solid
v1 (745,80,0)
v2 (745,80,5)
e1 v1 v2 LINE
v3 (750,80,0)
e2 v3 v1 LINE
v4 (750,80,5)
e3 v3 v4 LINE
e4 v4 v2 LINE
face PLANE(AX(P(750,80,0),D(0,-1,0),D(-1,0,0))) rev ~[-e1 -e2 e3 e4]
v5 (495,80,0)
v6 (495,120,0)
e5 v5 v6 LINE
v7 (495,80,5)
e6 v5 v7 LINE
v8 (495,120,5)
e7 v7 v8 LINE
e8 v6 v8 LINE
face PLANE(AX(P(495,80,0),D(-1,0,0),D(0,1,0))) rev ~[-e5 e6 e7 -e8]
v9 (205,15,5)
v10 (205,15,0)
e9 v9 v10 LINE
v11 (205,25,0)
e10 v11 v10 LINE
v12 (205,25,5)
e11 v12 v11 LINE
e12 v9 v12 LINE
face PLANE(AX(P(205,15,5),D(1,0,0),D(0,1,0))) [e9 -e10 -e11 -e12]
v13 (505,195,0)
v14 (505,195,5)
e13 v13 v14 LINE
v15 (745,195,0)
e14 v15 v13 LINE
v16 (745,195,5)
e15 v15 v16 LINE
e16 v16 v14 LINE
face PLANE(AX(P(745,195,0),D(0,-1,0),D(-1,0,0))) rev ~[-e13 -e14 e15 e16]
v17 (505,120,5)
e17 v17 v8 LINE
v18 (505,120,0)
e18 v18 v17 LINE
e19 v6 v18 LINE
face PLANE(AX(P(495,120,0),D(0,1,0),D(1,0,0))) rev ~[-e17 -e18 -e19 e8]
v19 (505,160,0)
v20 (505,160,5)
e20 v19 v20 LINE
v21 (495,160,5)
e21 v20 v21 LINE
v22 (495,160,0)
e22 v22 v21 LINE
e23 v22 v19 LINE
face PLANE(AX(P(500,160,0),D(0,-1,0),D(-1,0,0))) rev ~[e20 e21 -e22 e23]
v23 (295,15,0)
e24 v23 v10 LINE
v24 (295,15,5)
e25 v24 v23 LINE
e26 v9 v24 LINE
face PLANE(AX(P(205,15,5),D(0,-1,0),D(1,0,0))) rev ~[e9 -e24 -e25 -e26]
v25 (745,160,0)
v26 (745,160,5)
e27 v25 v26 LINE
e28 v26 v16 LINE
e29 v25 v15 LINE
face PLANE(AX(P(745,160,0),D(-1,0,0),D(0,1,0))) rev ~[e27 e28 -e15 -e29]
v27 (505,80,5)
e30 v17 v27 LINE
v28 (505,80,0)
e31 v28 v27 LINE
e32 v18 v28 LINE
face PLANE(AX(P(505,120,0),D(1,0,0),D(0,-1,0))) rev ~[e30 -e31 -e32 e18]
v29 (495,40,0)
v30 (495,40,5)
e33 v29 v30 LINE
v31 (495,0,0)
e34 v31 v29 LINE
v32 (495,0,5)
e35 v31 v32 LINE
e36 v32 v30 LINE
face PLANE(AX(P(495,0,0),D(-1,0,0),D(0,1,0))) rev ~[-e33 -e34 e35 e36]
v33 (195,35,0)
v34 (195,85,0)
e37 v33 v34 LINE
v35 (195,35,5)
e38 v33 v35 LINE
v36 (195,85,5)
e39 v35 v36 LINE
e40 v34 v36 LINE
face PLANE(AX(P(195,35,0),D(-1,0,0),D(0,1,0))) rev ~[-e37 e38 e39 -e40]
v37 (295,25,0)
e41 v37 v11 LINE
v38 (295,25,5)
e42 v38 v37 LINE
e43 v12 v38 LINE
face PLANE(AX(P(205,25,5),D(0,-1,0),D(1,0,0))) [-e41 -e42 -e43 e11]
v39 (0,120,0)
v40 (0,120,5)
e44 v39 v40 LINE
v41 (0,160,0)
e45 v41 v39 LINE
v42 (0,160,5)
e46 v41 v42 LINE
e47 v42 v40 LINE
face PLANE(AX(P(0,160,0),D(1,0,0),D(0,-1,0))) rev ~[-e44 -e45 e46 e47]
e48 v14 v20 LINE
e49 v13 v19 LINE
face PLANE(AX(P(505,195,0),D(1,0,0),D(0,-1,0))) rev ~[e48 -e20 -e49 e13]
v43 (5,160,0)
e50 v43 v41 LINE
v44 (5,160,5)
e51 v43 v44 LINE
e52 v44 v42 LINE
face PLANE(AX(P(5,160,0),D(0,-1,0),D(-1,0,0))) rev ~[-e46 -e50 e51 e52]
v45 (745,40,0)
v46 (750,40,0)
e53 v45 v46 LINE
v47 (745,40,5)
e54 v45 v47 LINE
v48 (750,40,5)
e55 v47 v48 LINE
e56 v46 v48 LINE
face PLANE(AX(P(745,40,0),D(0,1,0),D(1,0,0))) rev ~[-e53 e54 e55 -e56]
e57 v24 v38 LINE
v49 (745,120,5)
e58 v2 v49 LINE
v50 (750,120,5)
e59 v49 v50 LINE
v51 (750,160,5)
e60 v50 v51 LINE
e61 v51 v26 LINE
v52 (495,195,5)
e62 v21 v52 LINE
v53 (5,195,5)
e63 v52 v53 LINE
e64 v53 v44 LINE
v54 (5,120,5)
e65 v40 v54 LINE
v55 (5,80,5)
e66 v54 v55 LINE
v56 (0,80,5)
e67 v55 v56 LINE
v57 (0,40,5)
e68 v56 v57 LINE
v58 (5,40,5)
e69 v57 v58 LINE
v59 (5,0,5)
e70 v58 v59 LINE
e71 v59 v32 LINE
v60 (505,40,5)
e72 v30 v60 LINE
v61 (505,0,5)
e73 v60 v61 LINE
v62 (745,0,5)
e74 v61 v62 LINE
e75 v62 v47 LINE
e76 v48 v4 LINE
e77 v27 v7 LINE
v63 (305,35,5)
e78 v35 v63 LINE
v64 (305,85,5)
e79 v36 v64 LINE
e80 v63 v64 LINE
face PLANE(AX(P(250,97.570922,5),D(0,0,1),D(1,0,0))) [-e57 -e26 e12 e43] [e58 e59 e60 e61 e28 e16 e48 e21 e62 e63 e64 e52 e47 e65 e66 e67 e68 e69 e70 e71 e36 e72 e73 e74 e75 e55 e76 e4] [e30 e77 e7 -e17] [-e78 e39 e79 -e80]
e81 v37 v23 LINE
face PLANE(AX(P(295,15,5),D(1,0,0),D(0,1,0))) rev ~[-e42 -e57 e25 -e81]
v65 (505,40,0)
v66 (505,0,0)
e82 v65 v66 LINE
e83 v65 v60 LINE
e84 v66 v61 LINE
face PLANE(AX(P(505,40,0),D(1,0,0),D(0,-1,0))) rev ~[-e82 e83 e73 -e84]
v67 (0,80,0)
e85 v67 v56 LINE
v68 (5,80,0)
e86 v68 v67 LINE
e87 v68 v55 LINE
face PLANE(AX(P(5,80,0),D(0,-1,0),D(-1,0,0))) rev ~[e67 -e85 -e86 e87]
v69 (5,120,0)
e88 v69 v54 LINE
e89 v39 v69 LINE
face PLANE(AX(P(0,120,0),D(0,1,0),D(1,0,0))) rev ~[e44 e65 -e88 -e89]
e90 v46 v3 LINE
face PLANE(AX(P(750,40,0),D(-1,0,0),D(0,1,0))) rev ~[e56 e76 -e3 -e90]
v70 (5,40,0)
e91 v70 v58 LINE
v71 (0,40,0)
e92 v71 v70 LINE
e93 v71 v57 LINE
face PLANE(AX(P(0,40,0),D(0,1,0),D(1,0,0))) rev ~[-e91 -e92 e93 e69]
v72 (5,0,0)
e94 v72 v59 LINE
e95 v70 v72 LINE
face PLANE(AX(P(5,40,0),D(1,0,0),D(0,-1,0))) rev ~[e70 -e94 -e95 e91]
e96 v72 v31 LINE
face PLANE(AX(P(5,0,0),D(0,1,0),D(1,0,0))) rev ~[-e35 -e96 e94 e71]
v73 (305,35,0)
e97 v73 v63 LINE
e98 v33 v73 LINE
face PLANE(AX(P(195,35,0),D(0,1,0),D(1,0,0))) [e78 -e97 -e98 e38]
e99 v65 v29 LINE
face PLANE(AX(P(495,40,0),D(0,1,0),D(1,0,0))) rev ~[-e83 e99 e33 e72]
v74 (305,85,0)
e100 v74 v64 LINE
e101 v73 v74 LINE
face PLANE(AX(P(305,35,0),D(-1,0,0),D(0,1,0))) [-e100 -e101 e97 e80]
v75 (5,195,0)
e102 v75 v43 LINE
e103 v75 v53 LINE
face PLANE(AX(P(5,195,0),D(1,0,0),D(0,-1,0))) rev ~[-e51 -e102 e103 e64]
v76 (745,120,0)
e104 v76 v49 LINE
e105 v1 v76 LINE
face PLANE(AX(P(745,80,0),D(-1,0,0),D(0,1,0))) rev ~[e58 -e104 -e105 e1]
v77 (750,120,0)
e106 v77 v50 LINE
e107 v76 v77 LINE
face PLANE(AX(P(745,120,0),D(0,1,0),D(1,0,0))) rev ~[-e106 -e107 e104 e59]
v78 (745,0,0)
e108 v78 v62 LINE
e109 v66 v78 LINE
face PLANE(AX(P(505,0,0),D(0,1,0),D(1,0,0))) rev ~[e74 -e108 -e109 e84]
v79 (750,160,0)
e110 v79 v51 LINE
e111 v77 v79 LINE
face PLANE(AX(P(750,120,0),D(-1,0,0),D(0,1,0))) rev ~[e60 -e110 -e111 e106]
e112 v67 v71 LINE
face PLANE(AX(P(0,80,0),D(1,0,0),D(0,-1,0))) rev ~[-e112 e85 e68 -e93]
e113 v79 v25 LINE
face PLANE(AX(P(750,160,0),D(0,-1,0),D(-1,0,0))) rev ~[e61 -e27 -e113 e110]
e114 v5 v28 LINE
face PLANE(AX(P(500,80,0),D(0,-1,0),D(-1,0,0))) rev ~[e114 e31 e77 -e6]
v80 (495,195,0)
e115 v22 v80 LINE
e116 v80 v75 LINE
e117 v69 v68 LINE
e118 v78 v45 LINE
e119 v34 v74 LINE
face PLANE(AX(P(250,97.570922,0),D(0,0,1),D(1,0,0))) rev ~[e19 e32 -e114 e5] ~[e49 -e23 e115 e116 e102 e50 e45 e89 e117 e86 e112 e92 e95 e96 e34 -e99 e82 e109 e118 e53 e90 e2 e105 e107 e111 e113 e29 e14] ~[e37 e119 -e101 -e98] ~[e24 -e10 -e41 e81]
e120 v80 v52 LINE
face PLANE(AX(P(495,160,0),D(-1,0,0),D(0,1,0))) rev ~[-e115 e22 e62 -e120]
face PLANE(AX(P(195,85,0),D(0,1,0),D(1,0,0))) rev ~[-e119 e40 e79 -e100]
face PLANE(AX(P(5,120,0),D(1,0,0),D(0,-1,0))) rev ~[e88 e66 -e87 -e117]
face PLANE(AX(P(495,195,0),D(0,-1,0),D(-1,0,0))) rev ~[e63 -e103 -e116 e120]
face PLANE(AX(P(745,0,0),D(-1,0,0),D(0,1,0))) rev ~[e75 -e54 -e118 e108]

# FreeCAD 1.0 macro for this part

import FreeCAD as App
import Part
import Sketcher
from FreeCAD import Vector

doc = App.newDocument("Part")
body = doc.addObject("PartDesign::Body", "Body")

# Sketch on XY plane
sketch1 = body.newObject("Sketcher::SketchObject", "Sketch")
sketch1.AttachmentSupport = (doc.getObject("XY_Plane"), [""])
sketch1.MapMode = "FlatFace"
sketch1.addGeometry(Part.LineSegment(Vector(745, 120, 0), Vector(750, 120, 0)), False)
sketch1.addGeometry(Part.LineSegment(Vector(750, 120, 0), Vector(750, 160, 0)), False)
sketch1.addGeometry(Part.LineSegment(Vector(750, 160, 0), Vector(745, 160, 0)), False)
sketch1.addGeometry(Part.LineSegment(Vector(745, 160, 0), Vector(745, 195, 0)), False)
sketch1.addGeometry(Part.LineSegment(Vector(745, 195, 0), Vector(505, 195, 0)), False)
sketch1.addGeometry(Part.LineSegment(Vector(505, 195, 0), Vector(505, 160, 0)), False)
sketch1.addGeometry(Part.LineSegment(Vector(505, 160, 0), Vector(495, 160, 0)), False)
sketch1.addGeometry(Part.LineSegment(Vector(495, 160, 0), Vector(495, 195, 0)), False)
sketch1.addGeometry(Part.LineSegment(Vector(495, 195, 0), Vector(5, 195, 0)), False)
sketch1.addGeometry(Part.LineSegment(Vector(5, 195, 0), Vector(5, 160, 0)), False)
sketch1.addGeometry(Part.LineSegment(Vector(5, 160, 0), Vector(0, 160, 0)), False)
sketch1.addGeometry(Part.LineSegment(Vector(0, 160, 0), Vector(0, 120, 0)), False)
sketch1.addGeometry(Part.LineSegment(Vector(0, 120, 0), Vector(5, 120, 0)), False)
sketch1.addGeometry(Part.LineSegment(Vector(5, 120, 0), Vector(5, 80, 0)), False)
sketch1.addGeometry(Part.LineSegment(Vector(5, 80, 0), Vector(0, 80, 0)), False)
sketch1.addGeometry(Part.LineSegment(Vector(0, 80, 0), Vector(0, 40, 0)), False)
sketch1.addGeometry(Part.LineSegment(Vector(0, 40, 0), Vector(5, 40, 0)), False)
sketch1.addGeometry(Part.LineSegment(Vector(5, 40, 0), Vector(5, 0, 0)), False)
sketch1.addGeometry(Part.LineSegment(Vector(5, 0, 0), Vector(495, 0, 0)), False)
sketch1.addGeometry(Part.LineSegment(Vector(495, 0, 0), Vector(495, 40, 0)), False)
sketch1.addGeometry(Part.LineSegment(Vector(495, 40, 0), Vector(505, 40, 0)), False)
sketch1.addGeometry(Part.LineSegment(Vector(505, 40, 0), Vector(505, 0, 0)), False)
sketch1.addGeometry(Part.LineSegment(Vector(505, 0, 0), Vector(745, 0, 0)), False)
sketch1.addGeometry(Part.LineSegment(Vector(745, 0, 0), Vector(745, 40, 0)), False)
sketch1.addGeometry(Part.LineSegment(Vector(745, 40, 0), Vector(750, 40, 0)), False)
sketch1.addGeometry(Part.LineSegment(Vector(750, 40, 0), Vector(750, 80, 0)), False)
sketch1.addGeometry(Part.LineSegment(Vector(750, 80, 0), Vector(745, 80, 0)), False)
sketch1.addGeometry(Part.LineSegment(Vector(745, 80, 0), Vector(745, 120, 0)), False)
sketch1.addGeometry(Part.LineSegment(Vector(505, 120, 0), Vector(505, 80, 0)), False)
sketch1.addGeometry(Part.LineSegment(Vector(505, 80, 0), Vector(495, 80, 0)), False)
sketch1.addGeometry(Part.LineSegment(Vector(495, 80, 0), Vector(495, 120, 0)), False)
sketch1.addGeometry(Part.LineSegment(Vector(495, 120, 0), Vector(505, 120, 0)), False)
sketch1.addGeometry(Part.LineSegment(Vector(195, 35, 0), Vector(195, 85, 0)), False)
sketch1.addGeometry(Part.LineSegment(Vector(195, 85, 0), Vector(305, 85, 0)), False)
sketch1.addGeometry(Part.LineSegment(Vector(305, 85, 0), Vector(305, 35, 0)), False)
sketch1.addGeometry(Part.LineSegment(Vector(305, 35, 0), Vector(195, 35, 0)), False)
sketch1.addConstraint(Sketcher.Constraint("Coincident", 0, 2, 1, 1))
sketch1.addConstraint(Sketcher.Constraint("Coincident", 1, 2, 2, 1))
sketch1.addConstraint(Sketcher.Constraint("Coincident", 2, 2, 3, 1))
sketch1.addConstraint(Sketcher.Constraint("Coincident", 3, 2, 4, 1))
sketch1.addConstraint(Sketcher.Constraint("Coincident", 4, 2, 5, 1))
sketch1.addConstraint(Sketcher.Constraint("Coincident", 5, 2, 6, 1))
sketch1.addConstraint(Sketcher.Constraint("Coincident", 6, 2, 7, 1))
sketch1.addConstraint(Sketcher.Constraint("Coincident", 7, 2, 8, 1))
sketch1.addConstraint(Sketcher.Constraint("Coincident", 8, 2, 9, 1))
sketch1.addConstraint(Sketcher.Constraint("Coincident", 9, 2, 10, 1))
sketch1.addConstraint(Sketcher.Constraint("Coincident", 10, 2, 11, 1))
sketch1.addConstraint(Sketcher.Constraint("Coincident", 11, 2, 12, 1))
sketch1.addConstraint(Sketcher.Constraint("Coincident", 12, 2, 13, 1))
sketch1.addConstraint(Sketcher.Constraint("Coincident", 13, 2, 14, 1))
sketch1.addConstraint(Sketcher.Constraint("Coincident", 14, 2, 15, 1))
sketch1.addConstraint(Sketcher.Constraint("Coincident", 15, 2, 16, 1))
sketch1.addConstraint(Sketcher.Constraint("Coincident", 16, 2, 17, 1))
sketch1.addConstraint(Sketcher.Constraint("Coincident", 17, 2, 18, 1))
sketch1.addConstraint(Sketcher.Constraint("Coincident", 18, 2, 19, 1))
sketch1.addConstraint(Sketcher.Constraint("Coincident", 19, 2, 20, 1))
sketch1.addConstraint(Sketcher.Constraint("Coincident", 20, 2, 21, 1))
sketch1.addConstraint(Sketcher.Constraint("Coincident", 21, 2, 22, 1))
sketch1.addConstraint(Sketcher.Constraint("Coincident", 22, 2, 23, 1))
sketch1.addConstraint(Sketcher.Constraint("Coincident", 23, 2, 24, 1))
sketch1.addConstraint(Sketcher.Constraint("Coincident", 24, 2, 25, 1))
sketch1.addConstraint(Sketcher.Constraint("Coincident", 25, 2, 26, 1))
sketch1.addConstraint(Sketcher.Constraint("Coincident", 26, 2, 27, 1))
sketch1.addConstraint(Sketcher.Constraint("Coincident", 27, 2, 0, 1))
sketch1.addConstraint(Sketcher.Constraint("Coincident", 28, 2, 29, 1))
sketch1.addConstraint(Sketcher.Constraint("Coincident", 29, 2, 30, 1))
sketch1.addConstraint(Sketcher.Constraint("Coincident", 30, 2, 31, 1))
sketch1.addConstraint(Sketcher.Constraint("Coincident", 31, 2, 28, 1))
sketch1.addConstraint(Sketcher.Constraint("Coincident", 32, 2, 33, 1))
sketch1.addConstraint(Sketcher.Constraint("Coincident", 33, 2, 34, 1))
sketch1.addConstraint(Sketcher.Constraint("Coincident", 34, 2, 35, 1))
sketch1.addConstraint(Sketcher.Constraint("Coincident", 35, 2, 32, 1))
sketch1.addConstraint(Sketcher.Constraint("Horizontal", 0))
sketch1.addConstraint(Sketcher.Constraint("Vertical", 1))
sketch1.addConstraint(Sketcher.Constraint("Horizontal", 2))
sketch1.addConstraint(Sketcher.Constraint("Vertical", 3))
sketch1.addConstraint(Sketcher.Constraint("Horizontal", 4))
sketch1.addConstraint(Sketcher.Constraint("Vertical", 5))
sketch1.addConstraint(Sketcher.Constraint("Horizontal", 6))
sketch1.addConstraint(Sketcher.Constraint("Vertical", 7))
sketch1.addConstraint(Sketcher.Constraint("Horizontal", 8))
sketch1.addConstraint(Sketcher.Constraint("Vertical", 9))
sketch1.addConstraint(Sketcher.Constraint("Horizontal", 10))
sketch1.addConstraint(Sketcher.Constraint("Vertical", 11))
sketch1.addConstraint(Sketcher.Constraint("Horizontal", 12))
sketch1.addConstraint(Sketcher.Constraint("Vertical", 13))
sketch1.addConstraint(Sketcher.Constraint("Horizontal", 14))
sketch1.addConstraint(Sketcher.Constraint("Vertical", 15))
sketch1.addConstraint(Sketcher.Constraint("Horizontal", 16))
sketch1.addConstraint(Sketcher.Constraint("Vertical", 17))
sketch1.addConstraint(Sketcher.Constraint("Horizontal", 18))
sketch1.addConstraint(Sketcher.Constraint("Vertical", 19))
sketch1.addConstraint(Sketcher.Constraint("Horizontal", 20))
sketch1.addConstraint(Sketcher.Constraint("Vertical", 21))
sketch1.addConstraint(Sketcher.Constraint("Horizontal", 22))
sketch1.addConstraint(Sketcher.Constraint("Vertical", 23))
sketch1.addConstraint(Sketcher.Constraint("Horizontal", 24))
sketch1.addConstraint(Sketcher.Constraint("Vertical", 25))
sketch1.addConstraint(Sketcher.Constraint("Horizontal", 26))
sketch1.addConstraint(Sketcher.Constraint("Vertical", 27))
sketch1.addConstraint(Sketcher.Constraint("Vertical", 28))
sketch1.addConstraint(Sketcher.Constraint("Horizontal", 29))
sketch1.addConstraint(Sketcher.Constraint("Vertical", 30))
sketch1.addConstraint(Sketcher.Constraint("Horizontal", 31))
sketch1.addConstraint(Sketcher.Constraint("Vertical", 32))
sketch1.addConstraint(Sketcher.Constraint("Horizontal", 33))
sketch1.addConstraint(Sketcher.Constraint("Vertical", 34))
sketch1.addConstraint(Sketcher.Constraint("Horizontal", 35))
sketch1.addConstraint(Sketcher.Constraint("PointOnObject", 10, 2, -2))
sketch1.addConstraint(Sketcher.Constraint("PointOnObject", 14, 2, -2))
sketch1.addConstraint(Sketcher.Constraint("PointOnObject", 17, 2, -1))
sketch1.addConstraint(Sketcher.Constraint("PointOnObject", 21, 2, -1))
sketch1.addConstraint(Sketcher.Constraint("Horizontal", 2, 2, 5, 2))
sketch1.addConstraint(Sketcher.Constraint("Horizontal", 4, 2, 7, 2))
sketch1.addConstraint(Sketcher.Constraint("Horizontal", 6, 2, 9, 2))
sketch1.addConstraint(Sketcher.Constraint("Horizontal", 0, 2, 11, 2))
sketch1.addConstraint(Sketcher.Constraint("Horizontal", 16, 2, 19, 2))
sketch1.addConstraint(Sketcher.Constraint("Horizontal", 20, 2, 23, 2))
sketch1.addConstraint(Sketcher.Constraint("Horizontal", 14, 2, 25, 2))
sketch1.addConstraint(Sketcher.Constraint("Horizontal", 26, 2, 28, 2))
sketch1.addConstraint(Sketcher.Constraint("Horizontal", 27, 2, 30, 2))
sketch1.addConstraint(Sketcher.Constraint("Vertical", 9, 2, 12, 2))
sketch1.addConstraint(Sketcher.Constraint("Vertical", 13, 2, 16, 2))
sketch1.addConstraint(Sketcher.Constraint("Vertical", 7, 2, 18, 2))
sketch1.addConstraint(Sketcher.Constraint("Vertical", 5, 2, 20, 2))
sketch1.addConstraint(Sketcher.Constraint("Vertical", 3, 2, 22, 2))
sketch1.addConstraint(Sketcher.Constraint("Vertical", 1, 2, 24, 2))
sketch1.addConstraint(Sketcher.Constraint("Vertical", 23, 2, 26, 2))
sketch1.addConstraint(Sketcher.Constraint("Vertical", 21, 2, 28, 2))
sketch1.addConstraint(Sketcher.Constraint("Vertical", 19, 2, 29, 2))
sketch1.addConstraint(Sketcher.Constraint("Equal", 2, 10))
sketch1.addConstraint(Sketcher.Constraint("Equal", 11, 13))
sketch1.addConstraint(Sketcher.Constraint("Equal", 13, 15))
sketch1.addConstraint(Sketcher.Constraint("Equal", 15, 17))
sketch1.addConstraint(Sketcher.Constraint("DistanceX", 0, 1, 0, 2, 5.0))
sketch1.addConstraint(Sketcher.Constraint("DistanceX", 4, 2, 4, 1, 240.0))
sketch1.addConstraint(Sketcher.Constraint("DistanceX", 6, 2, 6, 1, 10.0))
sketch1.addConstraint(Sketcher.Constraint("DistanceX", 8, 2, 8, 1, 490.0))
sketch1.addConstraint(Sketcher.Constraint("DistanceX", 33, 1, 33, 2, 110.0))
sketch1.addConstraint(Sketcher.Constraint("DistanceY", 1, 1, 1, 2, 40.0))
sketch1.addConstraint(Sketcher.Constraint("DistanceY", 3, 1, 3, 2, 35.0))
sketch1.addConstraint(Sketcher.Constraint("DistanceY", 32, 1, 32, 2, 50.0))
sketch1.addConstraint(Sketcher.Constraint("DistanceX", -1, 1, 32, 2, 195.0))
sketch1.addConstraint(Sketcher.Constraint("DistanceY", -1, 1, 32, 2, 85.0))
pad1 = body.newObject("PartDesign::Pad", "Pad")
pad1.Profile = sketch1
pad1.Length = 5

# Sketch on XY plane
sketch2 = body.newObject("Sketcher::SketchObject", "Sketch001")
sketch2.AttachmentSupport = (doc.getObject("XY_Plane"), [""])
sketch2.MapMode = "FlatFace"
sketch2.AttachmentOffset = App.Placement(Vector(0, 0, 5), App.Rotation())
sketch2.addGeometry(Part.LineSegment(Vector(205, 25, 0), Vector(205, 15, 0)), False)
sketch2.addGeometry(Part.LineSegment(Vector(205, 15, 0), Vector(295, 15, 0)), False)
sketch2.addGeometry(Part.LineSegment(Vector(295, 15, 0), Vector(295, 25, 0)), False)
sketch2.addGeometry(Part.LineSegment(Vector(295, 25, 0), Vector(205, 25, 0)), False)
sketch2.addConstraint(Sketcher.Constraint("Coincident", 0, 2, 1, 1))
sketch2.addConstraint(Sketcher.Constraint("Coincident", 1, 2, 2, 1))
sketch2.addConstraint(Sketcher.Constraint("Coincident", 2, 2, 3, 1))
sketch2.addConstraint(Sketcher.Constraint("Coincident", 3, 2, 0, 1))
sketch2.addConstraint(Sketcher.Constraint("Vertical", 0))
sketch2.addConstraint(Sketcher.Constraint("Horizontal", 1))
sketch2.addConstraint(Sketcher.Constraint("Vertical", 2))
sketch2.addConstraint(Sketcher.Constraint("Horizontal", 3))
sketch2.addConstraint(Sketcher.Constraint("DistanceX", 1, 1, 1, 2, 90.0))
sketch2.addConstraint(Sketcher.Constraint("DistanceY", 0, 2, 0, 1, 10.0))
sketch2.addConstraint(Sketcher.Constraint("DistanceX", -1, 1, 0, 2, 205.0))
sketch2.addConstraint(Sketcher.Constraint("DistanceY", -1, 1, 0, 2, 15.0))
pocket1 = body.newObject("PartDesign::Pocket", "Pocket")
pocket1.Profile = sketch2
pocket1.Type = "UpToFirst"

doc.recompute()
